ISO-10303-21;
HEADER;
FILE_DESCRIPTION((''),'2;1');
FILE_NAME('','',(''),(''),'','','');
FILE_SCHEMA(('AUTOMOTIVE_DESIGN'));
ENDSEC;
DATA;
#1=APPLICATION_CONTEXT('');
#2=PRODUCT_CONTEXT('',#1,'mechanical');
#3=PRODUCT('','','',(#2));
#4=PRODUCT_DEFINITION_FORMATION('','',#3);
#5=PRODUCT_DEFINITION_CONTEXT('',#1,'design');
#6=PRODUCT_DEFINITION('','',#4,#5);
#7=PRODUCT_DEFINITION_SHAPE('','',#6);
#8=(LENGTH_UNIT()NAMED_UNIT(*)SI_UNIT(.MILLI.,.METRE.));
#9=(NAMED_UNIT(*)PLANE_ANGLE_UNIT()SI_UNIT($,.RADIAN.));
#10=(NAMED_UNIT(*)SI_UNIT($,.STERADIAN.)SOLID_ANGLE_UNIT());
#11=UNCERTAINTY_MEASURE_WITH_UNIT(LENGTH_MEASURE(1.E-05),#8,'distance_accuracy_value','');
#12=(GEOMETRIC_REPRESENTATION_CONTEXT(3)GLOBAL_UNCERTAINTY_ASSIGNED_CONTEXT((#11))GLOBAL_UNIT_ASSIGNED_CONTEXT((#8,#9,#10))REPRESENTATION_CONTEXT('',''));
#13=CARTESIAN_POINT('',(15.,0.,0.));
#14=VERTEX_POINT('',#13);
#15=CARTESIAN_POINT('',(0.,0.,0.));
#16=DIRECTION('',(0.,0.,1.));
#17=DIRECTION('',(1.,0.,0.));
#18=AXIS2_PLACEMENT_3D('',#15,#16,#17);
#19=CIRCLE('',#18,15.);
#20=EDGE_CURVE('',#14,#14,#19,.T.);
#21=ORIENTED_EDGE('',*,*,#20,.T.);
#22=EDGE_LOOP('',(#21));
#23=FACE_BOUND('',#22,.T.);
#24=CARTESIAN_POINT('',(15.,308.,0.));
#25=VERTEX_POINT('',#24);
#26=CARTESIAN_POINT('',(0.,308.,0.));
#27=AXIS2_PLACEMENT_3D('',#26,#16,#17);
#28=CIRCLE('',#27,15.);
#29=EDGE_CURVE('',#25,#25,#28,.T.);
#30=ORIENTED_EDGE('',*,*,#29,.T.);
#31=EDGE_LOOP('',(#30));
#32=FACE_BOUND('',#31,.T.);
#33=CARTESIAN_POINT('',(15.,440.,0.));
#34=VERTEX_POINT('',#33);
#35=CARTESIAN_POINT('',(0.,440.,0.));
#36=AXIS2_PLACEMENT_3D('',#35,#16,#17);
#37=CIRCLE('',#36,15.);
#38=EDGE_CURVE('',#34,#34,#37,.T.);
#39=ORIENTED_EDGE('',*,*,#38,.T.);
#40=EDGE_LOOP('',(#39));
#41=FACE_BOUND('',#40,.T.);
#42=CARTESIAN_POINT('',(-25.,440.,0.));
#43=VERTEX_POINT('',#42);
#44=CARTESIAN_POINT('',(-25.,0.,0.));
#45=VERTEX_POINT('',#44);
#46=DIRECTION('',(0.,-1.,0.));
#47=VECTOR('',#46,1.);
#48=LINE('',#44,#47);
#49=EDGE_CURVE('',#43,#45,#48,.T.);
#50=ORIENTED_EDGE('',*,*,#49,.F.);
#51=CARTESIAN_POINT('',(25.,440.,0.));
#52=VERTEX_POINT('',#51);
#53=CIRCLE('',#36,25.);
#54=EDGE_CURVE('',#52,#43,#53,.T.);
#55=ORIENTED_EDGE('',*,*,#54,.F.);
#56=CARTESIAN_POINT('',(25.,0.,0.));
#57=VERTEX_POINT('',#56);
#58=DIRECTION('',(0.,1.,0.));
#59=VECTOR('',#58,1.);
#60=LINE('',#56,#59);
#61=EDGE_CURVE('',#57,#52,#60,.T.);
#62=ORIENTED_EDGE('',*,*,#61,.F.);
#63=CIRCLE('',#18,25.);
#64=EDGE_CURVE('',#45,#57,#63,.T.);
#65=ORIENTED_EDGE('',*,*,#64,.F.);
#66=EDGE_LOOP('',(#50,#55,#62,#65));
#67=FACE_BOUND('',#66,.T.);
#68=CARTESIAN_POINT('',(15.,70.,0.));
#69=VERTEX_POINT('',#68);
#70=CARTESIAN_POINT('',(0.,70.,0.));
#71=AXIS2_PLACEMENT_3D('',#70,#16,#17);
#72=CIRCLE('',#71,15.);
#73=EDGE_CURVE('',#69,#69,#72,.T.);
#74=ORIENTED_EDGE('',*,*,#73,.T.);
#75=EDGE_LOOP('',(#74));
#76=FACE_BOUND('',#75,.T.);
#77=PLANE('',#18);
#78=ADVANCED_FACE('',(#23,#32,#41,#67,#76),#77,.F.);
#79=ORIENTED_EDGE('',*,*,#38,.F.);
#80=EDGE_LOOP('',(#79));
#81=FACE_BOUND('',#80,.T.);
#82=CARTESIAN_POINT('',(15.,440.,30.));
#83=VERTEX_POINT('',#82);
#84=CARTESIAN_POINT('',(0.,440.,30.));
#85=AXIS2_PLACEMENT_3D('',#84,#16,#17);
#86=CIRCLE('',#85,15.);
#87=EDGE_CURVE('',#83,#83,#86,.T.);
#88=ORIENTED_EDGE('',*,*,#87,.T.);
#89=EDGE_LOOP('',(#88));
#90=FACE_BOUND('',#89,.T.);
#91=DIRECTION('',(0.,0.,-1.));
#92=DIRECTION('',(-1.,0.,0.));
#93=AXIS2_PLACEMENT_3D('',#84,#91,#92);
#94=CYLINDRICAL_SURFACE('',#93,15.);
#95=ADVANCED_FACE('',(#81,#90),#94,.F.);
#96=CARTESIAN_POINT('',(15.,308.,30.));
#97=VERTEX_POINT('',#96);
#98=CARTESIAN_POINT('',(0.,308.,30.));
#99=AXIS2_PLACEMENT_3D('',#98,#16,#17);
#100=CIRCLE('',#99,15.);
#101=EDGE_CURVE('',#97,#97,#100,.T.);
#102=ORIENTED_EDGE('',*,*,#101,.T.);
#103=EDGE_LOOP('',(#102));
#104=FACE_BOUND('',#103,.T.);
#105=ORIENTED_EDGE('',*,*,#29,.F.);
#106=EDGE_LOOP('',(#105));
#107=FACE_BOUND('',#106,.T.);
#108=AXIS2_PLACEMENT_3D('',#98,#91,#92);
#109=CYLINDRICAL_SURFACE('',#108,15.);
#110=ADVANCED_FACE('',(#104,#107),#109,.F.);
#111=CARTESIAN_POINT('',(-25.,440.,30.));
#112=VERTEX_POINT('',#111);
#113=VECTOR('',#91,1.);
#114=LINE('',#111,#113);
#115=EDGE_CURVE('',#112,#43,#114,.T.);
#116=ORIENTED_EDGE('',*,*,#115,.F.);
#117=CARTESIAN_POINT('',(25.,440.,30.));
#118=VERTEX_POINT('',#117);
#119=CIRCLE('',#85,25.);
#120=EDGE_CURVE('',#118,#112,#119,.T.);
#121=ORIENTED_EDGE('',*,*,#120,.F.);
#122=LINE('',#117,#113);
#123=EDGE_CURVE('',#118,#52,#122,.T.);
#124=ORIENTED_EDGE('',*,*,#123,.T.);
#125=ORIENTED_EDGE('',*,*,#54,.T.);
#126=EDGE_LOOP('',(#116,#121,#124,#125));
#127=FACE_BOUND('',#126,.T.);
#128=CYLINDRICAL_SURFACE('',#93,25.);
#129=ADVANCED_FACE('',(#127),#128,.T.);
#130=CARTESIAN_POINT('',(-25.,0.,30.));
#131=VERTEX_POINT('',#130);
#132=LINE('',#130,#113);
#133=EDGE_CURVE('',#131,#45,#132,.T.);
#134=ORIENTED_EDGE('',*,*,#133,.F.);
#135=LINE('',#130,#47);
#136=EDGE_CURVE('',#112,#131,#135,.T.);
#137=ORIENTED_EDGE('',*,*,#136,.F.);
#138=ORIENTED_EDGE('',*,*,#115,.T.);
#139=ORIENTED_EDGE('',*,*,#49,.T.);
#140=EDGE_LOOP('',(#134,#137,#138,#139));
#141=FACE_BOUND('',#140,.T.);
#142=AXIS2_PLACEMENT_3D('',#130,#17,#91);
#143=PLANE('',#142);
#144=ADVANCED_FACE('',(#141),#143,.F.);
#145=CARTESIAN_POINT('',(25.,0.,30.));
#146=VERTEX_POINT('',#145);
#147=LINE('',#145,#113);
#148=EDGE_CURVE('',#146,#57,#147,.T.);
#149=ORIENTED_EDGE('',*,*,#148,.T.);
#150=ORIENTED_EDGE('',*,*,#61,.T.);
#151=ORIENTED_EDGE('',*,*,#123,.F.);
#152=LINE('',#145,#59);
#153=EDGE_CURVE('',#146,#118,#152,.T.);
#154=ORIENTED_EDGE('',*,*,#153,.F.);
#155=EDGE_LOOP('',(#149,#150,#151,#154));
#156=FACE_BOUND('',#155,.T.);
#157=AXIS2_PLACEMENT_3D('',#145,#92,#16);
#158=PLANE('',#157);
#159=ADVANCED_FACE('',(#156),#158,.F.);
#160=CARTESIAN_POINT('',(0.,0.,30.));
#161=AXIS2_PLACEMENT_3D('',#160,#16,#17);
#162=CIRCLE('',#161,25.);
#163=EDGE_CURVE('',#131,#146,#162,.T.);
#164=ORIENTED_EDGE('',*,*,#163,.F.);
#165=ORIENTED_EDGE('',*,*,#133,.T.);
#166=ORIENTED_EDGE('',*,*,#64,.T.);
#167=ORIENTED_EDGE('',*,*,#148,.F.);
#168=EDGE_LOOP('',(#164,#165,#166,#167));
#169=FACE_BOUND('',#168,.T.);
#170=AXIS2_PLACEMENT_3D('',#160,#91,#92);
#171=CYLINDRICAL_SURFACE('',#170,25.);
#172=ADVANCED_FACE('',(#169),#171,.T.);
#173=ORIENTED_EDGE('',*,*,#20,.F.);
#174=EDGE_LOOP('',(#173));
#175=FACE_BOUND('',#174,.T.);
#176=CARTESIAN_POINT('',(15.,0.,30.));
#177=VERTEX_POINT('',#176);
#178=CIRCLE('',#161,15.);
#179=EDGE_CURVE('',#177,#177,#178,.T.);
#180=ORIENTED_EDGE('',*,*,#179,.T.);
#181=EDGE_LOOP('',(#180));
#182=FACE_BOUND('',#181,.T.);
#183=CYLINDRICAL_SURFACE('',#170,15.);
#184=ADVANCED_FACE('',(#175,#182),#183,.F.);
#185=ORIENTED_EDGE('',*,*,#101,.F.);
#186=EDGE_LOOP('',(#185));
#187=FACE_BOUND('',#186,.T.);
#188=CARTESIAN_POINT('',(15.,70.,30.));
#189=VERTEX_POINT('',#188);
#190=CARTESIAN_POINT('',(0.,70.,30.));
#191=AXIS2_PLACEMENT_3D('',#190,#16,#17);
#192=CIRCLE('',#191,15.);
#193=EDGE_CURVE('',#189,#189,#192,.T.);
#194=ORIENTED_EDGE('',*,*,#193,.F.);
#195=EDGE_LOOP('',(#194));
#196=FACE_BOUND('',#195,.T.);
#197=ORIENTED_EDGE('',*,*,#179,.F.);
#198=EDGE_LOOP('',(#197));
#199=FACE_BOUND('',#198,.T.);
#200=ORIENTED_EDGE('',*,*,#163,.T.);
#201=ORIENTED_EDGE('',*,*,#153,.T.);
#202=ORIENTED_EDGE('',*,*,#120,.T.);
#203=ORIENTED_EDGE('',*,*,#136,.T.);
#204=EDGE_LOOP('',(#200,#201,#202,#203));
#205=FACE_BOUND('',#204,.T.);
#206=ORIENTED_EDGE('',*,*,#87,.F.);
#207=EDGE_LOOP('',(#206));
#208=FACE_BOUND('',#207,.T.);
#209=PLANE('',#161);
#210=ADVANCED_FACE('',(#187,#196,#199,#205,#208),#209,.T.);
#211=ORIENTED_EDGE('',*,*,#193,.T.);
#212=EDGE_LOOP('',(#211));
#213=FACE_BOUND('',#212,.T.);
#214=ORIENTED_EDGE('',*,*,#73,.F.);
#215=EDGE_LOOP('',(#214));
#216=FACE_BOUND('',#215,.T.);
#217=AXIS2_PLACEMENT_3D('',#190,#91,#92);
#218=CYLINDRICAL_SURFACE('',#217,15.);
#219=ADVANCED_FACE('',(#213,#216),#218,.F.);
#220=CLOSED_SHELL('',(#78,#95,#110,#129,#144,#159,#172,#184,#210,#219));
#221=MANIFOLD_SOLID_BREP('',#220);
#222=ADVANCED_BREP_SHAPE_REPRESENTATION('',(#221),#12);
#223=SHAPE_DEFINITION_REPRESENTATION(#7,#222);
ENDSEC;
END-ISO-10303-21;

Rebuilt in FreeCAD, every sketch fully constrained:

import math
import FreeCAD as App
import Part
import Sketcher
from FreeCAD import Vector
Q = App.Units.Quantity

doc = App.newDocument("Part")
params = doc.addObject("Spreadsheet::Sheet", "Params")
for row, (alias, value) in enumerate([
    ("sketch1_diameter", "30 mm"),
    ("sketch1_radius", "25 mm"),
    ("sketch1_height", "440 mm"),
    ("pad1_length", "30 mm"),
], start=1):
    params.set(f"A{row}", alias)
    params.set(f"B{row}", "=" + value)
    params.setAlias(f"B{row}", alias)

body = doc.addObject("PartDesign::Body", "Body")

sketch1 = body.newObject("Sketcher::SketchObject", "Sketch")
sketch1.AttachmentSupport = (doc.getObject("XY_Plane"), [""])
sketch1.MapMode = "FlatFace"
sketch1.addGeometry([
    Part.LineSegment(Vector(-25, 440, 0), Vector(-25, 0, 0)),
    Part.ArcOfCircle(Part.Circle(Vector(0, 0, 0), Vector(0, 0, 1), 25), math.radians(180), math.radians(360)),
    Part.LineSegment(Vector(25, 0, 0), Vector(25, 440, 0)),
    Part.ArcOfCircle(Part.Circle(Vector(0, 440, 0), Vector(0, 0, 1), 25), math.radians(0), math.radians(180)),
    Part.Circle(Vector(0, 0, 0), Vector(0, 0, 1), 15),
    Part.Circle(Vector(0, 70, 0), Vector(0, 0, 1), 15),
    Part.Circle(Vector(0, 308, 0), Vector(0, 0, 1), 15),
    Part.Circle(Vector(0, 440, 0), Vector(0, 0, 1), 15),
], False)
sketch1.addConstraint([
    Sketcher.Constraint("Tangent", 0, 2, 1, 1),
    Sketcher.Constraint("Tangent", 1, 2, 2, 1),
    Sketcher.Constraint("Tangent", 2, 2, 3, 1),
    Sketcher.Constraint("Tangent", 3, 2, 0, 1),
    Sketcher.Constraint("Vertical", 0),
    Sketcher.Constraint("Vertical", 2),
    Sketcher.Constraint("Coincident", 1, 3, -1, 1),
    Sketcher.Constraint("Coincident", 4, 3, -1, 1),
    Sketcher.Constraint("Coincident", 7, 3, 3, 3),
    Sketcher.Constraint("Equal", 4, 5),
    Sketcher.Constraint("Equal", 5, 6),
    Sketcher.Constraint("Equal", 6, 7),
    Sketcher.Constraint("PointOnObject", 5, 3, -2),
    Sketcher.Constraint("PointOnObject", 6, 3, -2),
    Sketcher.Constraint("Diameter", 4, Q("30 mm")),
    Sketcher.Constraint("Radius", 1, Q("25 mm")),
    Sketcher.Constraint("DistanceY", 0, 2, 0, 1, Q("440 mm")),
    Sketcher.Constraint("DistanceY", -1, 1, 5, 3, Q("70 mm")),
    Sketcher.Constraint("DistanceY", -1, 1, 6, 3, Q("308 mm")),
])
sketch1.setExpression("Constraints[14]", "Params.sketch1_diameter")
sketch1.setExpression("Constraints[15]", "Params.sketch1_radius")
sketch1.setExpression("Constraints[16]", "Params.sketch1_height")
pad1 = body.newObject("PartDesign::Pad", "Pad")
pad1.Profile = sketch1
pad1.setExpression("Length", "Params.pad1_length")

doc.recompute()
